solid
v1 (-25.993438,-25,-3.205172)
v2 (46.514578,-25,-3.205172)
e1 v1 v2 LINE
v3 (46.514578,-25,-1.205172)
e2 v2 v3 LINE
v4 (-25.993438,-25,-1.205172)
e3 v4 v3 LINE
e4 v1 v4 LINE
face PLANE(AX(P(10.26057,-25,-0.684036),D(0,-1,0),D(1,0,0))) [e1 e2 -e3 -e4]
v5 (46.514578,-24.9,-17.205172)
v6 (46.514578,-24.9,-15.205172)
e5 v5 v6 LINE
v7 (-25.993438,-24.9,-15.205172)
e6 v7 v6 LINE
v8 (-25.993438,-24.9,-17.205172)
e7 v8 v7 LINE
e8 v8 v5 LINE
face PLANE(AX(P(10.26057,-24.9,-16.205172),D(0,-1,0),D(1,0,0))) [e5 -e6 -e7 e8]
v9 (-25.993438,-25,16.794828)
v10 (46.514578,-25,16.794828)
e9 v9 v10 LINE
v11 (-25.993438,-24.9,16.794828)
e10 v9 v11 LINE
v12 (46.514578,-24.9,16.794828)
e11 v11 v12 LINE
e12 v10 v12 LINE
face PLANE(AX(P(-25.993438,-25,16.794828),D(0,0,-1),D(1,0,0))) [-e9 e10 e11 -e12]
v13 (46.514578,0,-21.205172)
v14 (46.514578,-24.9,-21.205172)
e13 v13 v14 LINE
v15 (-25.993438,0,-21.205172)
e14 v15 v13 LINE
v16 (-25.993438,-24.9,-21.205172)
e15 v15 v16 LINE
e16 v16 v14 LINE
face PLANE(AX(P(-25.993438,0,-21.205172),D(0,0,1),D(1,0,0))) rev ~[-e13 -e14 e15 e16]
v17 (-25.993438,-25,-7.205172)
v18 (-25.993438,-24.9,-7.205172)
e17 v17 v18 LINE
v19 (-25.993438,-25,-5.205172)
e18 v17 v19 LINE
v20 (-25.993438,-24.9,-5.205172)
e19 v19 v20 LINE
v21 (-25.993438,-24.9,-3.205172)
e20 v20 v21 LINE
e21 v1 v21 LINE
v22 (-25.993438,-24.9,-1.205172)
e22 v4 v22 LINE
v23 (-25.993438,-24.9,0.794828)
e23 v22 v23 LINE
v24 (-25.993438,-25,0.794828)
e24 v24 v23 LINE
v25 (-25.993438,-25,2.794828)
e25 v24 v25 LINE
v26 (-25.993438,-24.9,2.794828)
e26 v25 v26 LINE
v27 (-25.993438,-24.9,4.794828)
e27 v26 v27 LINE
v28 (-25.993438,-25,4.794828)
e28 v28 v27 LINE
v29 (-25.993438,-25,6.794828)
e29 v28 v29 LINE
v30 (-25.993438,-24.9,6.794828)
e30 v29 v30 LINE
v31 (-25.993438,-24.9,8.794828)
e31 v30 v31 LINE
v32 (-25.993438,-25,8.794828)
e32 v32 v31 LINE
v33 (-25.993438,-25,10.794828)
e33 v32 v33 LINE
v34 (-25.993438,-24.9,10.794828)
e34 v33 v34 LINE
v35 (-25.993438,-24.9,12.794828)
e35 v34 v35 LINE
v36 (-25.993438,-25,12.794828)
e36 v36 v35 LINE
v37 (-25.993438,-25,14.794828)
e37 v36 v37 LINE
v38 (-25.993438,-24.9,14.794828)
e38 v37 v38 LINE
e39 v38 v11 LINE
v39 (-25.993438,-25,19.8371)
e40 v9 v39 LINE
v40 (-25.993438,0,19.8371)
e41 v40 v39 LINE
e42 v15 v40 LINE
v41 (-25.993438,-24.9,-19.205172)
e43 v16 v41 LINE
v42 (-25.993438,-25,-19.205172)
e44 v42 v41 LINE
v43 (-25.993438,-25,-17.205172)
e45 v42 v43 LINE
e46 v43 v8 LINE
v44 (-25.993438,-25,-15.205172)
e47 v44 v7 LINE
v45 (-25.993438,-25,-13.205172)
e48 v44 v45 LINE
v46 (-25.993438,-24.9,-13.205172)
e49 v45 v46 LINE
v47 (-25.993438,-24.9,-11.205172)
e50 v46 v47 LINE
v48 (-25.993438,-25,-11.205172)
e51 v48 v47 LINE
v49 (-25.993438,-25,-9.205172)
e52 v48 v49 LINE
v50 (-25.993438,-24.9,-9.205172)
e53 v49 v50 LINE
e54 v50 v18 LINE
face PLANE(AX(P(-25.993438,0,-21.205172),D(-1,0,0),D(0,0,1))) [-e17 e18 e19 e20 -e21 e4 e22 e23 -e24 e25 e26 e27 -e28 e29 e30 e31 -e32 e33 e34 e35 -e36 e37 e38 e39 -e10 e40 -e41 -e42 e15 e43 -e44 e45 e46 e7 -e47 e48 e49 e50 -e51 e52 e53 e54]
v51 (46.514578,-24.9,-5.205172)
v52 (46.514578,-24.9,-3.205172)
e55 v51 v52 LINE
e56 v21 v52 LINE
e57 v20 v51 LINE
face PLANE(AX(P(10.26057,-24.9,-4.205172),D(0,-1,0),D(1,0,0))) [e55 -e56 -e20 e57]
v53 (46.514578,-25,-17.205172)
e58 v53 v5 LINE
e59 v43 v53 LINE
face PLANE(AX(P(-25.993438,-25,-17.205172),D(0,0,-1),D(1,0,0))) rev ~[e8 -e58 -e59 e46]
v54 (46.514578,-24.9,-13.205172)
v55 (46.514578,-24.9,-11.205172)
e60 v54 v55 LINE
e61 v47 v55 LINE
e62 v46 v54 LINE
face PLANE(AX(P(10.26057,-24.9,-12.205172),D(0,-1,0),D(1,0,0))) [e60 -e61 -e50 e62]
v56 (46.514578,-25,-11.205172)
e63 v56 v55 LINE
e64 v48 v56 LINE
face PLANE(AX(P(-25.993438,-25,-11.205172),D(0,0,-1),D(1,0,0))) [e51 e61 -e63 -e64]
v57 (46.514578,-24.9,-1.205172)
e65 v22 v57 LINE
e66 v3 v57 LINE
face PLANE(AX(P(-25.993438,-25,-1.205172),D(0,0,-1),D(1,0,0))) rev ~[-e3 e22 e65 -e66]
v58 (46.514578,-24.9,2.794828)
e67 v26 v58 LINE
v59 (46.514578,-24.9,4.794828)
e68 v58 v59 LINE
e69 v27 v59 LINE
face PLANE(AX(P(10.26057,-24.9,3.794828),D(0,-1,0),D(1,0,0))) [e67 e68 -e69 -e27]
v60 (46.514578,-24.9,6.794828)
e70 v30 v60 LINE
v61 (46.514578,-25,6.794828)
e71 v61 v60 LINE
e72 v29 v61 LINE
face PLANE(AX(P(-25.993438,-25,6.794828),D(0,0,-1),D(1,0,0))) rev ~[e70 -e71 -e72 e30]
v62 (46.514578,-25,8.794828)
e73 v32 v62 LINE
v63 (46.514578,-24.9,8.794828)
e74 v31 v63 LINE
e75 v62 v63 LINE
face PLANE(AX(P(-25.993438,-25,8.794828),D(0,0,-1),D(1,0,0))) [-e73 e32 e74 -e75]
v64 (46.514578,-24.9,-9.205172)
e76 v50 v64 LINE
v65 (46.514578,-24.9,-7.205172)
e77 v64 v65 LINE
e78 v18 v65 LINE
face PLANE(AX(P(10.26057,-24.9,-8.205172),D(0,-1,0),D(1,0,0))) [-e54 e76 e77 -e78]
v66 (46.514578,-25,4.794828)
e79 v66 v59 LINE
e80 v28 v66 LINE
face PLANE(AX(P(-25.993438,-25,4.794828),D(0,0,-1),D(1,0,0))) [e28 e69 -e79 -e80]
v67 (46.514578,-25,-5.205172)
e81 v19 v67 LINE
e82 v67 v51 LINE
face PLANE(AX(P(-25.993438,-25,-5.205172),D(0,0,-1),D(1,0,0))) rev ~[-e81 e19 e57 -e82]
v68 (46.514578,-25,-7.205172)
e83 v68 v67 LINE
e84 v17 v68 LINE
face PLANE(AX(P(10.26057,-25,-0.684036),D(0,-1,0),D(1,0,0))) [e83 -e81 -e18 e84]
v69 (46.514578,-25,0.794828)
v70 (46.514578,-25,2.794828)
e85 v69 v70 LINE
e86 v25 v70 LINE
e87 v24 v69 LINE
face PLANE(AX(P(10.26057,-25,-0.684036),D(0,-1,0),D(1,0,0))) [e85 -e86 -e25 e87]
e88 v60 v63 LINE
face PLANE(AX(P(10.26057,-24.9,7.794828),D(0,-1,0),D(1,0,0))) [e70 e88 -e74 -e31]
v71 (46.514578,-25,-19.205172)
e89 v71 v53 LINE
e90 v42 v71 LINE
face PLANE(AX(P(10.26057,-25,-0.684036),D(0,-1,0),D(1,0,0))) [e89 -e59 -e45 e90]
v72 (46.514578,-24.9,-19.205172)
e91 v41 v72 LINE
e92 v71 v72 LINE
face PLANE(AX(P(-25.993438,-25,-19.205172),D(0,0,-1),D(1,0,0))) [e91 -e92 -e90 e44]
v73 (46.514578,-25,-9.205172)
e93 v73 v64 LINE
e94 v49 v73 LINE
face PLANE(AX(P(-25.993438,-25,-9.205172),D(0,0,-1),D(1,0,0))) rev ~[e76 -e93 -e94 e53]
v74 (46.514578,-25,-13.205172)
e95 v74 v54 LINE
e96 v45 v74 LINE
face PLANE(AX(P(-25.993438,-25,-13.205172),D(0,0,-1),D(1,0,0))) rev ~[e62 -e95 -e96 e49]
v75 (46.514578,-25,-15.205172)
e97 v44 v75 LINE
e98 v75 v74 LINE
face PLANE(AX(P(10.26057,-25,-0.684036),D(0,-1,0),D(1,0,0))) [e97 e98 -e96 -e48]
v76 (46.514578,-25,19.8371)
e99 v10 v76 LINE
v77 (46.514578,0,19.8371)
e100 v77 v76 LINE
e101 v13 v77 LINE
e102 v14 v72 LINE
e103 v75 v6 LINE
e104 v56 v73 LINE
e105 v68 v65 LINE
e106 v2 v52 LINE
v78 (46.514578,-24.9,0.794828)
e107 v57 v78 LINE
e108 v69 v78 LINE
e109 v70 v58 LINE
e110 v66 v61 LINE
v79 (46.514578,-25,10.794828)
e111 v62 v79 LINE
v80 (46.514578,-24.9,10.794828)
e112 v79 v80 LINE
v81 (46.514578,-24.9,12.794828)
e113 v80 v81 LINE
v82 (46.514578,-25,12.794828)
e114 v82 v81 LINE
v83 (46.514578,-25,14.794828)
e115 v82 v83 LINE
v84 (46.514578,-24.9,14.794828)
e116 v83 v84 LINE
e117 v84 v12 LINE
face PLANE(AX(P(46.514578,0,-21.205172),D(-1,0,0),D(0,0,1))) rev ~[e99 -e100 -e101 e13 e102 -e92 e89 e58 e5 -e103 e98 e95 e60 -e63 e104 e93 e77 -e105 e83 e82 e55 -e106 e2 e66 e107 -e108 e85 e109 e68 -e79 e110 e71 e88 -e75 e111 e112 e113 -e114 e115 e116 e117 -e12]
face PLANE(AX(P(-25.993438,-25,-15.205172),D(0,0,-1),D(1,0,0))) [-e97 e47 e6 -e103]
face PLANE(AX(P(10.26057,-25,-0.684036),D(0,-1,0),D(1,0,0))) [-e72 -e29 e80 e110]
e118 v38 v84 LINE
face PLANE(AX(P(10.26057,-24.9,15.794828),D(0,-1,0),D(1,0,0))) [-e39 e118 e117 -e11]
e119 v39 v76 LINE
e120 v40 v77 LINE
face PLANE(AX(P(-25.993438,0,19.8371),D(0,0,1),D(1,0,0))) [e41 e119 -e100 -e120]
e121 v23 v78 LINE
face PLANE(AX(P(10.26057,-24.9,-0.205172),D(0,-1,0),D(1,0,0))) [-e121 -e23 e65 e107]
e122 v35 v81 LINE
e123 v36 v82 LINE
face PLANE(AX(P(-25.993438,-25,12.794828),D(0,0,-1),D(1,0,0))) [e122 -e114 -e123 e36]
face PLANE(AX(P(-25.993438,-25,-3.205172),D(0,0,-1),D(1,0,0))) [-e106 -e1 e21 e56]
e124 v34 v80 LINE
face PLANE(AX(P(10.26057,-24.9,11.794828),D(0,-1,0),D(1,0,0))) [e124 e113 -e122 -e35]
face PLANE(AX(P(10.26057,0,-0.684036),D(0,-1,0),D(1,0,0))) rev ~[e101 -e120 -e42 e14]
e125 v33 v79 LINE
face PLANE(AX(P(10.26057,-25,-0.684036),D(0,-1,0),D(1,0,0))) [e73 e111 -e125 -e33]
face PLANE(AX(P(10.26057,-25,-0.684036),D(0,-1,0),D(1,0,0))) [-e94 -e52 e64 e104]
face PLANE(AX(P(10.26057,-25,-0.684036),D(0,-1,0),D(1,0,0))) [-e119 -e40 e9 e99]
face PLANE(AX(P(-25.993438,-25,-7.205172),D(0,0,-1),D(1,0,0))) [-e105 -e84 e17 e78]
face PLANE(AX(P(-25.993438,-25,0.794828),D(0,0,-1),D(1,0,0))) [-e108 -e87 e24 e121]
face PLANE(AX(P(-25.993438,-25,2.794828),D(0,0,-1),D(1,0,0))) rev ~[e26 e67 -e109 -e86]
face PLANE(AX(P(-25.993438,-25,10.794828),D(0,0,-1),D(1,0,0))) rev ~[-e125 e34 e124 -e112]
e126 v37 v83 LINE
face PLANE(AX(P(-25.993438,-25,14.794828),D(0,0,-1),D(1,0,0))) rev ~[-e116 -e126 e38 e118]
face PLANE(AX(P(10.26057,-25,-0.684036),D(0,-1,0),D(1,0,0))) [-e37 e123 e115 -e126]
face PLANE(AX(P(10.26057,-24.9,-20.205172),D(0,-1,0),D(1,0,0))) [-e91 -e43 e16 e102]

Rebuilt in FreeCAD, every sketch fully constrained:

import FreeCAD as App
import Part
import Sketcher
from FreeCAD import Vector
Q = App.Units.Quantity

doc = App.newDocument("Part")
body = doc.addObject("PartDesign::Body", "Body")

sketch1 = body.newObject("Sketcher::SketchObject", "Sketch")
sketch1.AttachmentSupport = (doc.getObject("XZ_Plane"), [""])
sketch1.MapMode = "FlatFace"
sketch1.addGeometry([
    Part.LineSegment(Vector(-26, 20, 0), Vector(-26, -21, 0)),
    Part.LineSegment(Vector(-26, -21, 0), Vector(47, -21, 0)),
    Part.LineSegment(Vector(47, -21, 0), Vector(47, 20, 0)),
    Part.LineSegment(Vector(47, 20, 0), Vector(-26, 20, 0)),
], False)
sketch1.addConstraint([
    Sketcher.Constraint("Coincident", 0, 2, 1, 1),
    Sketcher.Constraint("Coincident", 1, 2, 2, 1),
    Sketcher.Constraint("Coincident", 2, 2, 3, 1),
    Sketcher.Constraint("Coincident", 3, 2, 0, 1),
    Sketcher.Constraint("Vertical", 0),
    Sketcher.Constraint("Horizontal", 1),
    Sketcher.Constraint("Vertical", 2),
    Sketcher.Constraint("Horizontal", 3),
    Sketcher.Constraint("DistanceY", 0, 2, 0, 1, Q("41.042272 mm")),
    Sketcher.Constraint("DistanceY", -1, 1, 2, 2, Q("19.8371 mm")),
    Sketcher.Constraint("DistanceX", 1, 1, 1, 2, Q("72.508016 mm")),
    Sketcher.Constraint("DistanceX", 0, 2, -1, 1, Q("25.993438 mm")),
])
pad1 = body.newObject("PartDesign::Pad", "Pad")
pad1.Profile = sketch1
pad1.Length = 25

sketch2 = body.newObject("Sketcher::SketchObject", "Sketch001")
sketch2.AttachmentSupport = (doc.getObject("XZ_Plane"), [""])
sketch2.MapMode = "FlatFace"
sketch2.AttachmentOffset = App.Placement(Vector(0, 0, 25), App.Rotation())
sketch2.addGeometry([
    Part.LineSegment(Vector(-26, -19.2, 0), Vector(-26, -21.2, 0)),
    Part.LineSegment(Vector(-26, -21.2, 0), Vector(46.5, -21.2, 0)),
    Part.LineSegment(Vector(46.5, -21.2, 0), Vector(46.5, -19.2, 0)),
    Part.LineSegment(Vector(46.5, -19.2, 0), Vector(-26, -19.2, 0)),
    Part.LineSegment(Vector(-26, -15.2, 0), Vector(-26, -17.2, 0)),
    Part.LineSegment(Vector(-26, -17.2, 0), Vector(46.5, -17.2, 0)),
    Part.LineSegment(Vector(46.5, -17.2, 0), Vector(46.5, -15.2, 0)),
    Part.LineSegment(Vector(46.5, -15.2, 0), Vector(-26, -15.2, 0)),
    Part.LineSegment(Vector(-26, -11.2, 0), Vector(-26, -13.2, 0)),
    Part.LineSegment(Vector(-26, -13.2, 0), Vector(46.5, -13.2, 0)),
    Part.LineSegment(Vector(46.5, -13.2, 0), Vector(46.5, -11.2, 0)),
    Part.LineSegment(Vector(46.5, -11.2, 0), Vector(-26, -11.2, 0)),
    Part.LineSegment(Vector(-26, -7.2, 0), Vector(-26, -9.2, 0)),
    Part.LineSegment(Vector(-26, -9.2, 0), Vector(46.5, -9.2, 0)),
    Part.LineSegment(Vector(46.5, -9.2, 0), Vector(46.5, -7.2, 0)),
    Part.LineSegment(Vector(46.5, -7.2, 0), Vector(-26, -7.2, 0)),
    Part.LineSegment(Vector(-26, -3.2, 0), Vector(-26, -5.2, 0)),
    Part.LineSegment(Vector(-26, -5.2, 0), Vector(46.5, -5.2, 0)),
    Part.LineSegment(Vector(46.5, -5.2, 0), Vector(46.5, -3.2, 0)),
    Part.LineSegment(Vector(46.5, -3.2, 0), Vector(-26, -3.2, 0)),
    Part.LineSegment(Vector(-26, 0.8, 0), Vector(-26, -1.2, 0)),
    Part.LineSegment(Vector(-26, -1.2, 0), Vector(46.5, -1.2, 0)),
    Part.LineSegment(Vector(46.5, -1.2, 0), Vector(46.5, 0.8, 0)),
    Part.LineSegment(Vector(46.5, 0.8, 0), Vector(-26, 0.8, 0)),
    Part.LineSegment(Vector(-26, 4.8, 0), Vector(-26, 2.8, 0)),
    Part.LineSegment(Vector(-26, 2.8, 0), Vector(46.5, 2.8, 0)),
    Part.LineSegment(Vector(46.5, 2.8, 0), Vector(46.5, 4.8, 0)),
    Part.LineSegment(Vector(46.5, 4.8, 0), Vector(-26, 4.8, 0)),
    Part.LineSegment(Vector(-26, 8.8, 0), Vector(-26, 6.8, 0)),
    Part.LineSegment(Vector(-26, 6.8, 0), Vector(46.5, 6.8, 0)),
    Part.LineSegment(Vector(46.5, 6.8, 0), Vector(46.5, 8.8, 0)),
    Part.LineSegment(Vector(46.5, 8.8, 0), Vector(-26, 8.8, 0)),
    Part.LineSegment(Vector(-26, 12.8, 0), Vector(-26, 10.8, 0)),
    Part.LineSegment(Vector(-26, 10.8, 0), Vector(46.5, 10.8, 0)),
    Part.LineSegment(Vector(46.5, 10.8, 0), Vector(46.5, 12.8, 0)),
    Part.LineSegment(Vector(46.5, 12.8, 0), Vector(-26, 12.8, 0)),
    Part.LineSegment(Vector(-26, 16.8, 0), Vector(-26, 14.8, 0)),
    Part.LineSegment(Vector(-26, 14.8, 0), Vector(46.5, 14.8, 0)),
    Part.LineSegment(Vector(46.5, 14.8, 0), Vector(46.5, 16.8, 0)),
    Part.LineSegment(Vector(46.5, 16.8, 0), Vector(-26, 16.8, 0)),
], False)
sketch2.addConstraint([
    Sketcher.Constraint("Coincident", 0, 2, 1, 1),
    Sketcher.Constraint("Coincident", 1, 2, 2, 1),
    Sketcher.Constraint("Coincident", 2, 2, 3, 1),
    Sketcher.Constraint("Coincident", 3, 2, 0, 1),
    Sketcher.Constraint("Coincident", 4, 2, 5, 1),
    Sketcher.Constraint("Coincident", 5, 2, 6, 1),
    Sketcher.Constraint("Coincident", 6, 2, 7, 1),
    Sketcher.Constraint("Coincident", 7, 2, 4, 1),
    Sketcher.Constraint("Coincident", 8, 2, 9, 1),
    Sketcher.Constraint("Coincident", 9, 2, 10, 1),
    Sketcher.Constraint("Coincident", 10, 2, 11, 1),
    Sketcher.Constraint("Coincident", 11, 2, 8, 1),
    Sketcher.Constraint("Coincident", 12, 2, 13, 1),
    Sketcher.Constraint("Coincident", 13, 2, 14, 1),
    Sketcher.Constraint("Coincident", 14, 2, 15, 1),
    Sketcher.Constraint("Coincident", 15, 2, 12, 1),
    Sketcher.Constraint("Coincident", 16, 2, 17, 1),
    Sketcher.Constraint("Coincident", 17, 2, 18, 1),
    Sketcher.Constraint("Coincident", 18, 2, 19, 1),
    Sketcher.Constraint("Coincident", 19, 2, 16, 1),
    Sketcher.Constraint("Coincident", 20, 2, 21, 1),
    Sketcher.Constraint("Coincident", 21, 2, 22, 1),
    Sketcher.Constraint("Coincident", 22, 2, 23, 1),
    Sketcher.Constraint("Coincident", 23, 2, 20, 1),
    Sketcher.Constraint("Coincident", 24, 2, 25, 1),
    Sketcher.Constraint("Coincident", 25, 2, 26, 1),
    Sketcher.Constraint("Coincident", 26, 2, 27, 1),
    Sketcher.Constraint("Coincident", 27, 2, 24, 1),
    Sketcher.Constraint("Coincident", 28, 2, 29, 1),
    Sketcher.Constraint("Coincident", 29, 2, 30, 1),
    Sketcher.Constraint("Coincident", 30, 2, 31, 1),
    Sketcher.Constraint("Coincident", 31, 2, 28, 1),
    Sketcher.Constraint("Coincident", 32, 2, 33, 1),
    Sketcher.Constraint("Coincident", 33, 2, 34, 1),
    Sketcher.Constraint("Coincident", 34, 2, 35, 1),
    Sketcher.Constraint("Coincident", 35, 2, 32, 1),
    Sketcher.Constraint("Coincident", 36, 2, 37, 1),
    Sketcher.Constraint("Coincident", 37, 2, 38, 1),
    Sketcher.Constraint("Coincident", 38, 2, 39, 1),
    Sketcher.Constraint("Coincident", 39, 2, 36, 1),
    Sketcher.Constraint("Vertical", 0),
    Sketcher.Constraint("Horizontal", 1),
    Sketcher.Constraint("Vertical", 2),
    Sketcher.Constraint("Horizontal", 3),
    Sketcher.Constraint("Vertical", 4),
    Sketcher.Constraint("Horizontal", 5),
    Sketcher.Constraint("Vertical", 6),
    Sketcher.Constraint("Horizontal", 7),
    Sketcher.Constraint("Vertical", 8),
    Sketcher.Constraint("Horizontal", 9),
    Sketcher.Constraint("Vertical", 10),
    Sketcher.Constraint("Horizontal", 11),
    Sketcher.Constraint("Vertical", 12),
    Sketcher.Constraint("Horizontal", 13),
    Sketcher.Constraint("Vertical", 14),
    Sketcher.Constraint("Horizontal", 15),
    Sketcher.Constraint("Vertical", 16),
    Sketcher.Constraint("Horizontal", 17),
    Sketcher.Constraint("Vertical", 18),
    Sketcher.Constraint("Horizontal", 19),
    Sketcher.Constraint("Vertical", 20),
    Sketcher.Constraint("Horizontal", 21),
    Sketcher.Constraint("Vertical", 22),
    Sketcher.Constraint("Horizontal", 23),
    Sketcher.Constraint("Vertical", 24),
    Sketcher.Constraint("Horizontal", 25),
    Sketcher.Constraint("Vertical", 26),
    Sketcher.Constraint("Horizontal", 27),
    Sketcher.Constraint("Vertical", 28),
    Sketcher.Constraint("Horizontal", 29),
    Sketcher.Constraint("Vertical", 30),
    Sketcher.Constraint("Horizontal", 31),
    Sketcher.Constraint("Vertical", 32),
    Sketcher.Constraint("Horizontal", 33),
    Sketcher.Constraint("Vertical", 34),
    Sketcher.Constraint("Horizontal", 35),
    Sketcher.Constraint("Vertical", 36),
    Sketcher.Constraint("Horizontal", 37),
    Sketcher.Constraint("Vertical", 38),
    Sketcher.Constraint("Horizontal", 39),
    Sketcher.Constraint("Vertical", 3, 2, 4, 2),
    Sketcher.Constraint("Vertical", 2, 2, 5, 2),
    Sketcher.Constraint("Vertical", 7, 2, 8, 2),
    Sketcher.Constraint("Vertical", 6, 2, 9, 2),
    Sketcher.Constraint("Vertical", 11, 2, 12, 2),
    Sketcher.Constraint("Vertical", 10, 2, 13, 2),
    Sketcher.Constraint("Vertical", 15, 2, 16, 2),
    Sketcher.Constraint("Vertical", 14, 2, 17, 2),
    Sketcher.Constraint("Vertical", 19, 2, 20, 2),
    Sketcher.Constraint("Vertical", 18, 2, 21, 2),
    Sketcher.Constraint("Vertical", 23, 2, 24, 2),
    Sketcher.Constraint("Vertical", 22, 2, 25, 2),
    Sketcher.Constraint("Vertical", 27, 2, 28, 2),
    Sketcher.Constraint("Vertical", 26, 2, 29, 2),
    Sketcher.Constraint("Vertical", 31, 2, 32, 2),
    Sketcher.Constraint("Vertical", 30, 2, 33, 2),
    Sketcher.Constraint("Vertical", 35, 2, 36, 2),
    Sketcher.Constraint("Vertical", 34, 2, 37, 2),
    Sketcher.Constraint("Equal", 2, 4),
    Sketcher.Constraint("Equal", 6, 8),
    Sketcher.Constraint("Equal", 10, 12),
    Sketcher.Constraint("Equal", 14, 16),
    Sketcher.Constraint("Equal", 18, 20),
    Sketcher.Constraint("Equal", 22, 24),
    Sketcher.Constraint("Equal", 26, 28),
    Sketcher.Constraint("Equal", 30, 32),
    Sketcher.Constraint("Equal", 34, 36),
    Sketcher.Constraint("DistanceY", 0, 2, 0, 1, Q("2 mm")),
    Sketcher.Constraint("DistanceY", 3, 2, 4, 2, Q("2 mm")),
    Sketcher.Constraint("DistanceY", 7, 2, 8, 2, Q("2 mm")),
    Sketcher.Constraint("DistanceY", 11, 2, 12, 2, Q("2 mm")),
    Sketcher.Constraint("DistanceY", 15, 2, 16, 2, Q("2 mm")),
    Sketcher.Constraint("DistanceY", 19, 2, 20, 2, Q("2 mm")),
    Sketcher.Constraint("DistanceY", 23, 2, 24, 2, Q("2 mm")),
    Sketcher.Constraint("DistanceY", 27, 2, 28, 2, Q("2 mm")),
    Sketcher.Constraint("DistanceY", 31, 2, 32, 2, Q("2 mm")),
    Sketcher.Constraint("DistanceY", 35, 2, 36, 2, Q("2 mm")),
    Sketcher.Constraint("DistanceX", 1, 1, 1, 2, Q("72.508016 mm")),
    Sketcher.Constraint("DistanceX", 0, 2, -1, 1, Q("25.993438 mm")),
    Sketcher.Constraint("DistanceY", 6, 2, -1, 1, Q("15.205172 mm")),
])
pocket1 = body.newObject("PartDesign::Pocket", "Pocket")
pocket1.Profile = sketch2
pocket1.Length = 0.1

doc.recompute()
